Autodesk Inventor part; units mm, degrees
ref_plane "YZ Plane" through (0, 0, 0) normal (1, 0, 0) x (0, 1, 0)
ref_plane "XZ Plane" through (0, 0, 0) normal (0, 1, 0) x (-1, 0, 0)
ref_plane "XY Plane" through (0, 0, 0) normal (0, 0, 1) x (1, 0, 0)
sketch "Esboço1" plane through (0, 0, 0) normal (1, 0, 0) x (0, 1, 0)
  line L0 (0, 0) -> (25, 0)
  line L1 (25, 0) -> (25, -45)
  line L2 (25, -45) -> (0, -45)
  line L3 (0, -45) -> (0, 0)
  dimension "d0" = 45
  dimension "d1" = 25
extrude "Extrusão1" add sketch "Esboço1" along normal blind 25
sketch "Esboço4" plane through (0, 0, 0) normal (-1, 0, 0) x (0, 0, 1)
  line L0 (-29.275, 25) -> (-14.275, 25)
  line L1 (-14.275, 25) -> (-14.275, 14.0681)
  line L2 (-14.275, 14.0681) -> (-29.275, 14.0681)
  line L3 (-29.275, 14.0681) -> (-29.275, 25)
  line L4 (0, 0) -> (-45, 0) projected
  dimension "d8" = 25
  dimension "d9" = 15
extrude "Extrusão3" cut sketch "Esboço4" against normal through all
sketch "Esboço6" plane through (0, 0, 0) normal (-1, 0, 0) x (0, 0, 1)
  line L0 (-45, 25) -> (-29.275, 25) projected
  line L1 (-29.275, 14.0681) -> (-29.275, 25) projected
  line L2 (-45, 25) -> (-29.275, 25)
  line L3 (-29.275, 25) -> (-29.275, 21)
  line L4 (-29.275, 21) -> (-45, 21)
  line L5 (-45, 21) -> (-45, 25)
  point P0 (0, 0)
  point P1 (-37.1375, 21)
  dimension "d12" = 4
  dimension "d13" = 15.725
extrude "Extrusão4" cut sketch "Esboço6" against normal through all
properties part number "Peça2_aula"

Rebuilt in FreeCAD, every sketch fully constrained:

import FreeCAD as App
import Part
import Sketcher

doc = App.newDocument("Part")
body = doc.addObject("PartDesign::Body", "Body")

# Sketch on YZ plane
sketch1 = body.newObject("Sketcher::SketchObject", "Sketch")
sketch1.AttachmentSupport = (doc.getObject("YZ_Plane"), [""])
sketch1.MapMode = "FlatFace"
sketch1.addGeometry([
    Part.LineSegment(App.Vector(25, 0, 0), App.Vector(0, 0, 0)),
    Part.LineSegment(App.Vector(0, 0, 0), App.Vector(0, -45, 0)),
    Part.LineSegment(App.Vector(0, -45, 0), App.Vector(25, -45, 0)),
    Part.LineSegment(App.Vector(25, -45, 0), App.Vector(25, 0, 0)),
], False)
sketch1.addConstraint([
    Sketcher.Constraint("Coincident", 0, 2, 1, 1),
    Sketcher.Constraint("Coincident", 1, 2, 2, 1),
    Sketcher.Constraint("Coincident", 2, 2, 3, 1),
    Sketcher.Constraint("Coincident", 3, 2, 0, 1),
    Sketcher.Constraint("Horizontal", 0),
    Sketcher.Constraint("Vertical", 1),
    Sketcher.Constraint("Horizontal", 2),
    Sketcher.Constraint("Vertical", 3),
    Sketcher.Constraint("Coincident", 0, 2, -1, 1),
    Sketcher.Constraint("DistanceX", 0, 2, 0, 1, 25.0),
    Sketcher.Constraint("DistanceY", 1, 2, 1, 1, 45.0),
])
pad1 = body.newObject("PartDesign::Pad", "Pad")
pad1.Profile = sketch1
pad1.Length = 25

# Sketch on YZ plane
sketch2 = body.newObject("Sketcher::SketchObject", "Sketch001")
sketch2.AttachmentSupport = (doc.getObject("YZ_Plane"), [""])
sketch2.MapMode = "FlatFace"
sketch2.addGeometry([
    Part.LineSegment(App.Vector(25, -14, 0), App.Vector(25, -29, 0)),
    Part.LineSegment(App.Vector(25, -29, 0), App.Vector(14, -29, 0)),
    Part.LineSegment(App.Vector(14, -29, 0), App.Vector(14, -14, 0)),
    Part.LineSegment(App.Vector(14, -14, 0), App.Vector(25, -14, 0)),
], False)
sketch2.addConstraint([
    Sketcher.Constraint("Coincident", 0, 2, 1, 1),
    Sketcher.Constraint("Coincident", 1, 2, 2, 1),
    Sketcher.Constraint("Coincident", 2, 2, 3, 1),
    Sketcher.Constraint("Coincident", 3, 2, 0, 1),
    Sketcher.Constraint("Vertical", 0),
    Sketcher.Constraint("Horizontal", 1),
    Sketcher.Constraint("Vertical", 2),
    Sketcher.Constraint("Horizontal", 3),
    Sketcher.Constraint("DistanceY", 0, 2, 0, 1, 15.0),
    Sketcher.Constraint("DistanceX", -1, 1, 0, 2, 25.0),
    Sketcher.Constraint("DistanceX", 1, 2, 1, 1, 10.932),
    Sketcher.Constraint("DistanceY", 0, 2, -1, 1, 29.275),
])
pocket1 = body.newObject("PartDesign::Pocket", "Pocket")
pocket1.Profile = sketch2
pocket1.Type = "ThroughAll"
pocket1.Reversed = True

# Sketch on YZ plane
sketch3 = body.newObject("Sketcher::SketchObject", "Sketch002")
sketch3.AttachmentSupport = (doc.getObject("YZ_Plane"), [""])
sketch3.MapMode = "FlatFace"
sketch3.addGeometry([
    Part.LineSegment(App.Vector(25, -29.3, 0), App.Vector(25, -45, 0)),
    Part.LineSegment(App.Vector(25, -45, 0), App.Vector(21, -45, 0)),
    Part.LineSegment(App.Vector(21, -45, 0), App.Vector(21, -29.3, 0)),
    Part.LineSegment(App.Vector(21, -29.3, 0), App.Vector(25, -29.3, 0)),
], False)
sketch3.addConstraint([
    Sketcher.Constraint("Coincident", 0, 2, 1, 1),
    Sketcher.Constraint("Coincident", 1, 2, 2, 1),
    Sketcher.Constraint("Coincident", 2, 2, 3, 1),
    Sketcher.Constraint("Coincident", 3, 2, 0, 1),
    Sketcher.Constraint("Vertical", 0),
    Sketcher.Constraint("Horizontal", 1),
    Sketcher.Constraint("Vertical", 2),
    Sketcher.Constraint("Horizontal", 3),
    Sketcher.Constraint("DistanceX", 1, 2, 1, 1, 4.0),
    Sketcher.Constraint("DistanceY", 0, 2, 0, 1, 15.725),
    Sketcher.Constraint("DistanceX", -1, 1, 0, 2, 25.0),
    Sketcher.Constraint("DistanceY", 0, 2, -1, 1, 45.0),
])
pocket2 = body.newObject("PartDesign::Pocket", "Pocket001")
pocket2.Profile = sketch3
pocket2.Type = "ThroughAll"
pocket2.Reversed = True

doc.recompute()
